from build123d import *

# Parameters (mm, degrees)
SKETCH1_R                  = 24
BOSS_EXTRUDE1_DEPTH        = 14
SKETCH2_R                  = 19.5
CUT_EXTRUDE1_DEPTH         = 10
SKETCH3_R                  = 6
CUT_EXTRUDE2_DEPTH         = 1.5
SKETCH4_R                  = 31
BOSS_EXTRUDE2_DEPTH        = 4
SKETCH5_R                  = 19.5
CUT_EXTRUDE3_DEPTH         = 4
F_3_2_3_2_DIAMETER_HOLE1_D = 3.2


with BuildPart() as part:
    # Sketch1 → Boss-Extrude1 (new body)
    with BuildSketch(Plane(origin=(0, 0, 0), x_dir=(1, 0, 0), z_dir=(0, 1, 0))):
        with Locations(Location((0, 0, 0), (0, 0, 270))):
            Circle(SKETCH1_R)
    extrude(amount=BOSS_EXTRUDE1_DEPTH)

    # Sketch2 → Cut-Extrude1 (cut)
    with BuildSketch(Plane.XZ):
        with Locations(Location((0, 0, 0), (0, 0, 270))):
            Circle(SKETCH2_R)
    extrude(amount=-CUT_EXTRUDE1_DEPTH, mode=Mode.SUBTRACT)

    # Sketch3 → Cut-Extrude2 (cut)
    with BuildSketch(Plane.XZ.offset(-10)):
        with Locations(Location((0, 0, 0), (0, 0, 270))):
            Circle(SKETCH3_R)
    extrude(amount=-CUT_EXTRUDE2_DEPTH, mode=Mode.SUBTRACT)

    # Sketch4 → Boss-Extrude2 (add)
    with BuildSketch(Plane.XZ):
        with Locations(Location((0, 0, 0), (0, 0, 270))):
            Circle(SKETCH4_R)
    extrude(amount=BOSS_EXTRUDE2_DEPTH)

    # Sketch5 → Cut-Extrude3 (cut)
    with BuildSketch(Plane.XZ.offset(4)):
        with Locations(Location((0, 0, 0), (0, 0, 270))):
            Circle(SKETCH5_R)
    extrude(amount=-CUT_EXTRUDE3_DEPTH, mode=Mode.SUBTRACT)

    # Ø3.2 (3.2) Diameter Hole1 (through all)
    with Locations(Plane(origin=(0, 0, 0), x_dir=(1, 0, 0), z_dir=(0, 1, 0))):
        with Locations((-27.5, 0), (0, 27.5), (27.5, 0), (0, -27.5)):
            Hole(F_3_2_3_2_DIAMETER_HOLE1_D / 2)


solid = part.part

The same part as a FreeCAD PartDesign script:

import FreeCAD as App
import Part
import Sketcher
from FreeCAD import Vector
Q = App.Units.Quantity

doc = App.newDocument("Part")
body = doc.addObject("PartDesign::Body", "Body")

# Sketch on XZ plane
sketch1 = body.newObject("Sketcher::SketchObject", "Sketch")
sketch1.AttachmentSupport = (doc.getObject("XZ_Plane"), [""])
sketch1.MapMode = "FlatFace"
sketch1.addGeometry(Part.Circle(Vector(0, 0, 0), Vector(0, 0, 1), 24), False)
sketch1.addConstraint(Sketcher.Constraint("Coincident", 0, 3, -1, 1))
sketch1.addConstraint(Sketcher.Constraint("Diameter", 0, Q("48 mm")))
pad1 = body.newObject("PartDesign::Pad", "Pad")
pad1.Profile = sketch1
pad1.Length = 14
pad1.Reversed = True

# Sketch on XZ plane
sketch2 = body.newObject("Sketcher::SketchObject", "Sketch001")
sketch2.AttachmentSupport = (doc.getObject("XZ_Plane"), [""])
sketch2.MapMode = "FlatFace"
sketch2.addGeometry(Part.Circle(Vector(0, 0, 0), Vector(0, 0, 1), 19.5), False)
sketch2.addConstraint(Sketcher.Constraint("Coincident", 0, 3, -1, 1))
sketch2.addConstraint(Sketcher.Constraint("Diameter", 0, Q("39 mm")))
pocket1 = body.newObject("PartDesign::Pocket", "Pocket")
pocket1.Profile = sketch2
pocket1.Length = 10

# Sketch on XZ plane
sketch3 = body.newObject("Sketcher::SketchObject", "Sketch002")
sketch3.AttachmentSupport = (doc.getObject("XZ_Plane"), [""])
sketch3.MapMode = "FlatFace"
sketch3.AttachmentOffset = App.Placement(Vector(0, 0, -10), App.Rotation())
sketch3.addGeometry(Part.Circle(Vector(0, 0, 0), Vector(0, 0, 1), 6), False)
sketch3.addConstraint(Sketcher.Constraint("Coincident", 0, 3, -1, 1))
sketch3.addConstraint(Sketcher.Constraint("Diameter", 0, Q("12 mm")))
pocket2 = body.newObject("PartDesign::Pocket", "Pocket001")
pocket2.Profile = sketch3
pocket2.Length = 1.5

# Sketch on XZ plane
sketch4 = body.newObject("Sketcher::SketchObject", "Sketch003")
sketch4.AttachmentSupport = (doc.getObject("XZ_Plane"), [""])
sketch4.MapMode = "FlatFace"
sketch4.addGeometry(Part.Circle(Vector(0, 0, 0), Vector(0, 0, 1), 31), False)
sketch4.addConstraint(Sketcher.Constraint("Coincident", 0, 3, -1, 1))
sketch4.addConstraint(Sketcher.Constraint("Diameter", 0, Q("62 mm")))
pad2 = body.newObject("PartDesign::Pad", "Pad001")
pad2.Profile = sketch4
pad2.Length = 4

# Sketch on XZ plane
sketch5 = body.newObject("Sketcher::SketchObject", "Sketch004")
sketch5.AttachmentSupport = (doc.getObject("XZ_Plane"), [""])
sketch5.MapMode = "FlatFace"
sketch5.AttachmentOffset = App.Placement(Vector(0, 0, 4), App.Rotation())
sketch5.addGeometry(Part.Circle(Vector(0, 0, 0), Vector(0, 0, 1), 19.5), False)
sketch5.addConstraint(Sketcher.Constraint("Coincident", 0, 3, -1, 1))
sketch5.addConstraint(Sketcher.Constraint("Diameter", 0, Q("39 mm")))
pocket3 = body.newObject("PartDesign::Pocket", "Pocket002")
pocket3.Profile = sketch5
pocket3.Length = 4

# Sketch on XZ plane
sketch6 = body.newObject("Sketcher::SketchObject", "Sketch005")
sketch6.AttachmentSupport = (doc.getObject("XZ_Plane"), [""])
sketch6.MapMode = "FlatFace"
sketch6.addGeometry(Part.Circle(Vector(-27.5, 0, 0), Vector(0, 0, 1), 1.6), False)
sketch6.addGeometry(Part.Circle(Vector(0, -27.5, 0), Vector(0, 0, 1), 1.6), False)
sketch6.addGeometry(Part.Circle(Vector(27.5, 0, 0), Vector(0, 0, 1), 1.6), False)
sketch6.addGeometry(Part.Circle(Vector(0, 27.5, 0), Vector(0, 0, 1), 1.6), False)
sketch6.addConstraint(Sketcher.Constraint("Equal", 0, 1))
sketch6.addConstraint(Sketcher.Constraint("Equal", 1, 2))
sketch6.addConstraint(Sketcher.Constraint("Equal", 2, 3))
sketch6.addConstraint(Sketcher.Constraint("Symmetric", 0, 3, 2, 3, -1, 1))
sketch6.addConstraint(Sketcher.Constraint("Symmetric", 1, 3, 3, 3, -1, 1))
sketch6.addConstraint(Sketcher.Constraint("PointOnObject", 0, 3, -1))
sketch6.addConstraint(Sketcher.Constraint("PointOnObject", 1, 3, -2))
sketch6.addConstraint(Sketcher.Constraint("Diameter", 0, Q("3.2 mm")))
sketch6.addConstraint(Sketcher.Constraint("DistanceX", 0, 3, 2, 3, Q("55 mm")))
sketch6.addConstraint(Sketcher.Constraint("DistanceY", 1, 3, 3, 3, Q("55 mm")))
doc.recompute()
hole = body.newObject("PartDesign::Hole", "Hole")
hole.Profile = sketch6
hole.ThreadType = "None"
hole.Diameter = 3.2
hole.DepthType = "ThroughAll"
hole.Reversed = True

doc.recompute()
